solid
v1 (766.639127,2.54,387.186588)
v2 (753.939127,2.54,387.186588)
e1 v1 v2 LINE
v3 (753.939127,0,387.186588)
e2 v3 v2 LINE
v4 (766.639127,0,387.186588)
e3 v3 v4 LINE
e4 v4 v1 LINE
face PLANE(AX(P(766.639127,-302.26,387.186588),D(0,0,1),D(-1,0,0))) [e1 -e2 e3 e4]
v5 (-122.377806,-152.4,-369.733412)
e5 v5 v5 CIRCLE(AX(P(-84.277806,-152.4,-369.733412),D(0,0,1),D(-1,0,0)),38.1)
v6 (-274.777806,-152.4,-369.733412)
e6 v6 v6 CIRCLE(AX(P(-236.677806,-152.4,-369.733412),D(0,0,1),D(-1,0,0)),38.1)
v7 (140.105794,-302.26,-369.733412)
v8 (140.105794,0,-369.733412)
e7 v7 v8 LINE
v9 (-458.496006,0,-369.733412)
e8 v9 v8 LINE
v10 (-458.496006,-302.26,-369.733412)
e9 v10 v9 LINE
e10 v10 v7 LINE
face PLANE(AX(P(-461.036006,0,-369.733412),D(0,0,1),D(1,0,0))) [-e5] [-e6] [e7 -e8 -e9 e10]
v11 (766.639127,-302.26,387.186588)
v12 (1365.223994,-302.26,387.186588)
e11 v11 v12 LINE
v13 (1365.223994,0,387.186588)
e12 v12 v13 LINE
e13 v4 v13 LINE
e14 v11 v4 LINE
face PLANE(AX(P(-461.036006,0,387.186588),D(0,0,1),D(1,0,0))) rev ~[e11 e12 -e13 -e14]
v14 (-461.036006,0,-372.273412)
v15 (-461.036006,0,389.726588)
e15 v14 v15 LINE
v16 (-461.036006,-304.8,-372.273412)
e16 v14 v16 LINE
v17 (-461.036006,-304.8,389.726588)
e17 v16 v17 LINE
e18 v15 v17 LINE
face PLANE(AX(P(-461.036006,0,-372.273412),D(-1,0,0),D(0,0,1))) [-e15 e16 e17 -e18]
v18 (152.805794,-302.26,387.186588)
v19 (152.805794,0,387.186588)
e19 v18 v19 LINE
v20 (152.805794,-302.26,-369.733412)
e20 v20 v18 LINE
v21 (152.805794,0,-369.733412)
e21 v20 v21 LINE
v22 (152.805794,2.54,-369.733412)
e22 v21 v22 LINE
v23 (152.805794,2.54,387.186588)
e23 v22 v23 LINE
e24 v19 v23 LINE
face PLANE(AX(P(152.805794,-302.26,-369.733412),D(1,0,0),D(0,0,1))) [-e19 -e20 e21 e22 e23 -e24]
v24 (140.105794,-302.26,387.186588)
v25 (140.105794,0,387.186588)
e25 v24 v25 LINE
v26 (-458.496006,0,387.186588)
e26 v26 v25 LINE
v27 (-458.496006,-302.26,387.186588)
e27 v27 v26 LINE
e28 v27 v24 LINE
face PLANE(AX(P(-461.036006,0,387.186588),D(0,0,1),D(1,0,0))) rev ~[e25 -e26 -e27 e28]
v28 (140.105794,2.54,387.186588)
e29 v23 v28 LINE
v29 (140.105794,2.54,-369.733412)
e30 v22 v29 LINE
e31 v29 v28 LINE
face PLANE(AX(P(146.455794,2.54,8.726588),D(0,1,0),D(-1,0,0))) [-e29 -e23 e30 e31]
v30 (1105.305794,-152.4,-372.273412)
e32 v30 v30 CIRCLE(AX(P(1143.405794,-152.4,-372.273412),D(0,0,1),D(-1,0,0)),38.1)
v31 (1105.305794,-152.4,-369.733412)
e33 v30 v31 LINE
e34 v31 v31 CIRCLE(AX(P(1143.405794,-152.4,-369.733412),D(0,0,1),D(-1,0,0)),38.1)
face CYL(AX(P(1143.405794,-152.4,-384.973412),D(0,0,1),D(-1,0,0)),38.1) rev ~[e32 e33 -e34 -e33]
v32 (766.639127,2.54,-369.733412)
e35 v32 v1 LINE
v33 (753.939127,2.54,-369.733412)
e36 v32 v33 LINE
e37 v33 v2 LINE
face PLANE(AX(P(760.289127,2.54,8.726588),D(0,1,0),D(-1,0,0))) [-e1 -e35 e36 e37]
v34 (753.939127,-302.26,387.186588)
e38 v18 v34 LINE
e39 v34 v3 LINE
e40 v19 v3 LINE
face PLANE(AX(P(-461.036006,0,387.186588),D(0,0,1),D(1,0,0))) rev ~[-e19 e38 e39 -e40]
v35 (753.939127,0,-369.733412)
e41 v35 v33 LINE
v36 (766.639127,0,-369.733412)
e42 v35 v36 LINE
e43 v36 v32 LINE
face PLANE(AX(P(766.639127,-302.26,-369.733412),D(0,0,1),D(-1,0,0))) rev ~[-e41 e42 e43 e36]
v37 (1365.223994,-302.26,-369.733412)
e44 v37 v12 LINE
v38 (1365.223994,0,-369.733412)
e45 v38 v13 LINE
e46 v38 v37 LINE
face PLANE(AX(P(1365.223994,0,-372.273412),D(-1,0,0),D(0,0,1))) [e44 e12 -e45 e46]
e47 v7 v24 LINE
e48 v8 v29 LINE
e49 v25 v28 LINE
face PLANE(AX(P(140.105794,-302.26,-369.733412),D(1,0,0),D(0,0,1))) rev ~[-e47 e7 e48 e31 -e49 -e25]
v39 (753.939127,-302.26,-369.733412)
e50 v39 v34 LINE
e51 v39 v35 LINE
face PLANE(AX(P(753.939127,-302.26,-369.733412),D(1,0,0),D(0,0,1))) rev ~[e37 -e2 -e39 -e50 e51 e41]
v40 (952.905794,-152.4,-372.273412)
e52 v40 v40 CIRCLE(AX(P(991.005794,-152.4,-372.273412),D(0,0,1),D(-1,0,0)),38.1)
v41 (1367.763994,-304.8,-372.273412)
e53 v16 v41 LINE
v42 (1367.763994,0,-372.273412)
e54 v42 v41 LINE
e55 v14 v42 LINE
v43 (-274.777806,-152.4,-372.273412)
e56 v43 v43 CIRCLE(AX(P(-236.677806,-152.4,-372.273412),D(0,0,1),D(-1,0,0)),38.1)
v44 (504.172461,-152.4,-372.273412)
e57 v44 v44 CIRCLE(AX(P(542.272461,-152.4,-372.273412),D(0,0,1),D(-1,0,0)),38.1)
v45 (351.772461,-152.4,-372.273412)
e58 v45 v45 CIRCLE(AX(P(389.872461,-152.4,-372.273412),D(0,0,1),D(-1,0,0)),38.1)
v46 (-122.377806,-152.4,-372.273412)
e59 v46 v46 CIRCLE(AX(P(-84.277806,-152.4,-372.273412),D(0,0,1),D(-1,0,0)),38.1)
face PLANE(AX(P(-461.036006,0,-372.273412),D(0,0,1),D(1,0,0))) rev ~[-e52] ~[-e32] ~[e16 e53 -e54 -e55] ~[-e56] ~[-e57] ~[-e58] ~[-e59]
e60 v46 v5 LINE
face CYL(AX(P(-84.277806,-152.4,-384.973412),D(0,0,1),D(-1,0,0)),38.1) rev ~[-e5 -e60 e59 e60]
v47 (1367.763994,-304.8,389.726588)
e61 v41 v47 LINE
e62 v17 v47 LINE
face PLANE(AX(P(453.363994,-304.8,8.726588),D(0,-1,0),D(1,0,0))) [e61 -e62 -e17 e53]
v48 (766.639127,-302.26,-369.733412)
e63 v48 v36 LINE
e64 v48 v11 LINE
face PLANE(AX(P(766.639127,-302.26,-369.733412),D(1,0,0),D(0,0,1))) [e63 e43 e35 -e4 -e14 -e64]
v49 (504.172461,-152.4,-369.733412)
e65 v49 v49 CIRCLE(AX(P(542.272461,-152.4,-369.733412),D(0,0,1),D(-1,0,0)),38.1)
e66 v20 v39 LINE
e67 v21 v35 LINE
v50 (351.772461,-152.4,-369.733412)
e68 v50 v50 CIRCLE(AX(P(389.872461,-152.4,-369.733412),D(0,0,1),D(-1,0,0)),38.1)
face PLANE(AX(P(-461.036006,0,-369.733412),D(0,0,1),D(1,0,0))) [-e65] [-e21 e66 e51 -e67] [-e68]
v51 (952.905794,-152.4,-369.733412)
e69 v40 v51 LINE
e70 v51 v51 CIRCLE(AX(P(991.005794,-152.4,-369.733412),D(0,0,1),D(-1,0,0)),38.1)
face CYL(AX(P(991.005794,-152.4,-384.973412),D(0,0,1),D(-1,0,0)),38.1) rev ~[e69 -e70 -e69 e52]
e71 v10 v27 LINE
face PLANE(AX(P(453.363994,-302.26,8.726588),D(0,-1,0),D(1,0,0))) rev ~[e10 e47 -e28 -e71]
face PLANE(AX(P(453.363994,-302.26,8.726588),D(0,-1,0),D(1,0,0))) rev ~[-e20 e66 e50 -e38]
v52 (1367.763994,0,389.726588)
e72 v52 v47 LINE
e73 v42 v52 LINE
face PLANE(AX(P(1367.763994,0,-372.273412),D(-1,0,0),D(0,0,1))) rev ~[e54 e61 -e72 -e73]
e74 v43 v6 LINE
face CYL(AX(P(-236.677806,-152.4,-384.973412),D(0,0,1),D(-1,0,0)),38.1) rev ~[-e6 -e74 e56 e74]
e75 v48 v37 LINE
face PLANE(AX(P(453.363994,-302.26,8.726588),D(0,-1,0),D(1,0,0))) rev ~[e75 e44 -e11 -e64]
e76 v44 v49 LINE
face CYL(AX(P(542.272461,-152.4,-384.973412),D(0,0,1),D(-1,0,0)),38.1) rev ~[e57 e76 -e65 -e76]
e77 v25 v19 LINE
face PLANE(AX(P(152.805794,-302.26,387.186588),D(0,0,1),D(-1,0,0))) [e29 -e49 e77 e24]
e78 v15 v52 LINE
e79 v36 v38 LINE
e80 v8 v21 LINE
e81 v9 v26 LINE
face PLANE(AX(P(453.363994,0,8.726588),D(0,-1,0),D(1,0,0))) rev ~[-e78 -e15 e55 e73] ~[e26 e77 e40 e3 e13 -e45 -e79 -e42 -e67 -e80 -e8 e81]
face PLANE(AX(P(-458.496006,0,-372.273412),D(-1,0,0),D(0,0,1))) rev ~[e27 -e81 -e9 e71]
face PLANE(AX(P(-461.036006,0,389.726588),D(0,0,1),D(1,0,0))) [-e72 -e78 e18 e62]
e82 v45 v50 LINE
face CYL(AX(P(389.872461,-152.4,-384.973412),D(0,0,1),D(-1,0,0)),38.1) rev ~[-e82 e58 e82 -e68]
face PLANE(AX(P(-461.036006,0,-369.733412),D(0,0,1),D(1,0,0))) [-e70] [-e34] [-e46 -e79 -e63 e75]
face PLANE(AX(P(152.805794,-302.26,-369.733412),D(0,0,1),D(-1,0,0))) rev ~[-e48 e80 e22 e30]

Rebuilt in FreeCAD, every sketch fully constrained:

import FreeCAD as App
import Part
import Sketcher

V = App.Vector
Q = App.Units.Quantity


def faces_at(feature, points):
    """Names of the faces that lie closest to the given points."""
    faces = feature.Shape.Faces
    near = lambda p: min(range(len(faces)), key=lambda i: faces[i].distToShape(Part.Vertex(*p))[0])
    return sorted({f"Face{near(p) + 1}" for p in points})

doc = App.newDocument("Part")
params = doc.addObject("Spreadsheet::Sheet", "Params")
for row, (alias, value) in enumerate([
    ("sketch1_width", "72 in"),
    ("sketch1_height", "30 in"),
    ("pad1_length", "12 in"),
    ("thickness_wall", "0.1 in"),
    ("sketch2_diameter", "3 in"),
    ("hole_diameter", "3 in"),
    ("hole_depth", "0.5 in"),
    ("sketch3_width", "0.5 in"),
    ("sketch3_height", "29.8 in"),
    ("pad2_length", "12 in"),
], start=1):
    params.set(f"A{row}", alias)
    params.set(f"B{row}", "=" + value)
    params.setAlias(f"B{row}", alias)

body = doc.addObject("PartDesign::Body", "Body")

# Sketch on XZ plane
sketch1 = body.newObject("Sketcher::SketchObject", "Sketch")
sketch1.AttachmentSupport = (doc.getObject("XZ_Plane"), [""])
sketch1.MapMode = "FlatFace"
sketch1.addGeometry([
    Part.LineSegment(V(-461, 390, 0), V(-461, -372, 0)),
    Part.LineSegment(V(-461, -372, 0), V(1368, -372, 0)),
    Part.LineSegment(V(1368, -372, 0), V(1368, 390, 0)),
    Part.LineSegment(V(1368, 390, 0), V(-461, 390, 0)),
], False)
sketch1.addConstraint([
    Sketcher.Constraint("Coincident", 0, 2, 1, 1),
    Sketcher.Constraint("Coincident", 1, 2, 2, 1),
    Sketcher.Constraint("Coincident", 2, 2, 3, 1),
    Sketcher.Constraint("Coincident", 3, 2, 0, 1),
    Sketcher.Constraint("Vertical", 0),
    Sketcher.Constraint("Horizontal", 1),
    Sketcher.Constraint("Vertical", 2),
    Sketcher.Constraint("Horizontal", 3),
    Sketcher.Constraint("DistanceX", 1, 1, 1, 2, Q("72 in")),
    Sketcher.Constraint("DistanceY", 0, 2, 0, 1, Q("30 in")),
    Sketcher.Constraint("DistanceY", 0, 2, -1, 1, 372.273412),
    Sketcher.Constraint("DistanceX", 0, 2, -1, 1, 461.036006),
])
sketch1.setExpression("Constraints[8]", "Params.sketch1_width")
sketch1.setExpression("Constraints[9]", "Params.sketch1_height")
pad1 = body.newObject("PartDesign::Pad", "Pad")
pad1.Profile = sketch1
pad1.setExpression("Length", "Params.pad1_length")
doc.recompute()

thickness = body.newObject("PartDesign::Thickness", "Thickness")
thickness.Base = (pad1, faces_at(pad1, [(453.364, 0, 8.727)]))
thickness.setExpression("Value", "Params.thickness_wall")
thickness.Reversed = True
thickness.Join = "Arc"

# Sketch on XY plane
sketch2 = body.newObject("Sketcher::SketchObject", "Sketch001")
sketch2.AttachmentSupport = (doc.getObject("XY_Plane"), [""])
sketch2.MapMode = "FlatFace"
sketch2.AttachmentOffset = App.Placement(V(0, 0, -372.273412), App.Rotation())
sketch2.addGeometry([
    Part.Circle(V(-237, -152, 0), V(0, 0, 1), 38),  # 0
    Part.Circle(V(-84, -152, 0), V(0, 0, 1), 38),  # 1
    Part.Circle(V(390, -152, 0), V(0, 0, 1), 38),  # 2
    Part.Circle(V(542, -152, 0), V(0, 0, 1), 38),  # 3
    Part.Circle(V(991, -152, 0), V(0, 0, 1), 38),  # 4
    Part.Circle(V(1143, -152, 0), V(0, 0, 1), 38),  # 5
], False)
sketch2.addConstraint([
    Sketcher.Constraint("Equal", 0, 1),
    Sketcher.Constraint("Equal", 1, 2),
    Sketcher.Constraint("Equal", 2, 3),
    Sketcher.Constraint("Equal", 3, 4),
    Sketcher.Constraint("Equal", 4, 5),
    Sketcher.Constraint("Horizontal", 0, 3, 1, 3),
    Sketcher.Constraint("Horizontal", 1, 3, 2, 3),
    Sketcher.Constraint("Horizontal", 2, 3, 3, 3),
    Sketcher.Constraint("Horizontal", 3, 3, 4, 3),
    Sketcher.Constraint("Horizontal", 4, 3, 5, 3),
    Sketcher.Constraint("Diameter", 0, Q("3 in")),
    Sketcher.Constraint("DistanceY", 0, 3, -1, 1, Q("6 in")),
    Sketcher.Constraint("DistanceX", 0, 3, 1, 3, Q("6 in")),
    Sketcher.Constraint("DistanceX", 2, 3, 3, 3, Q("6 in")),
    Sketcher.Constraint("DistanceX", 4, 3, 5, 3, Q("6 in")),
    Sketcher.Constraint("DistanceX", 1, 3, 4, 3, Q("42.334 in")),
    Sketcher.Constraint("DistanceX", -1, 1, 2, 3, 389.872461),
    Sketcher.Constraint("DistanceX", 0, 3, -1, 1, 236.677806),
])
sketch2.setExpression("Constraints[10]", "Params.sketch2_diameter")
doc.recompute()
hole = body.newObject("PartDesign::Hole", "Hole")
hole.Profile = sketch2
hole.ThreadType = "None"
hole.setExpression("Diameter", "Params.hole_diameter")
hole.DepthType = "Dimension"
hole.setExpression("Depth", "Params.hole_depth")
hole.DrillPoint = "Flat"
hole.Reversed = True

# Sketch on XZ plane
sketch3 = body.newObject("Sketcher::SketchObject", "Sketch002")
sketch3.AttachmentSupport = (doc.getObject("XZ_Plane"), [""])
sketch3.MapMode = "FlatFace"
sketch3.AttachmentOffset = App.Placement(V(0, 0, 11.9 * 25.4), App.Rotation())
sketch3.addGeometry([
    Part.LineSegment(V(767, 387, 0), V(767, -370, 0)),  # 0
    Part.LineSegment(V(767, -370, 0), V(754, -370, 0)),  # 1
    Part.LineSegment(V(754, -370, 0), V(754, 387, 0)),  # 2
    Part.LineSegment(V(754, 387, 0), V(767, 387, 0)),  # 3
    Part.LineSegment(V(153, 387, 0), V(153, -370, 0)),  # 4
    Part.LineSegment(V(153, -370, 0), V(140, -370, 0)),  # 5
    Part.LineSegment(V(140, -370, 0), V(140, 387, 0)),  # 6
    Part.LineSegment(V(140, 387, 0), V(153, 387, 0)),  # 7
], False)
sketch3.addConstraint([
    Sketcher.Constraint("Coincident", 0, 2, 1, 1),
    Sketcher.Constraint("Coincident", 1, 2, 2, 1),
    Sketcher.Constraint("Coincident", 2, 2, 3, 1),
    Sketcher.Constraint("Coincident", 3, 2, 0, 1),
    Sketcher.Constraint("Coincident", 4, 2, 5, 1),
    Sketcher.Constraint("Coincident", 5, 2, 6, 1),
    Sketcher.Constraint("Coincident", 6, 2, 7, 1),
    Sketcher.Constraint("Coincident", 7, 2, 4, 1),
    Sketcher.Constraint("Vertical", 0),
    Sketcher.Constraint("Horizontal", 1),
    Sketcher.Constraint("Vertical", 2),
    Sketcher.Constraint("Horizontal", 3),
    Sketcher.Constraint("Vertical", 4),
    Sketcher.Constraint("Horizontal", 5),
    Sketcher.Constraint("Vertical", 6),
    Sketcher.Constraint("Horizontal", 7),
    Sketcher.Constraint("Horizontal", 1, 2, 4, 2),
    Sketcher.Constraint("Horizontal", 3, 2, 6, 2),
    Sketcher.Constraint("Equal", 3, 5),
    Sketcher.Constraint("DistanceX", 1, 2, 1, 1, Q("0.5 in")),
    Sketcher.Constraint("DistanceY", 0, 2, 0, 1, Q("29.8 in")),
    Sketcher.Constraint("DistanceY", 0, 2, -1, 1, 369.733412),
    Sketcher.Constraint("DistanceX", -1, 1, 0, 2, 766.639127),
    Sketcher.Constraint("DistanceX", -1, 1, 4, 2, 152.805794),
])
sketch3.setExpression("Constraints[19]", "Params.sketch3_width")
sketch3.setExpression("Constraints[20]", "Params.sketch3_height")
pad2 = body.newObject("PartDesign::Pad", "Pad001")
pad2.Profile = sketch3
pad2.setExpression("Length", "Params.pad2_length")
pad2.Reversed = True

doc.recompute()
